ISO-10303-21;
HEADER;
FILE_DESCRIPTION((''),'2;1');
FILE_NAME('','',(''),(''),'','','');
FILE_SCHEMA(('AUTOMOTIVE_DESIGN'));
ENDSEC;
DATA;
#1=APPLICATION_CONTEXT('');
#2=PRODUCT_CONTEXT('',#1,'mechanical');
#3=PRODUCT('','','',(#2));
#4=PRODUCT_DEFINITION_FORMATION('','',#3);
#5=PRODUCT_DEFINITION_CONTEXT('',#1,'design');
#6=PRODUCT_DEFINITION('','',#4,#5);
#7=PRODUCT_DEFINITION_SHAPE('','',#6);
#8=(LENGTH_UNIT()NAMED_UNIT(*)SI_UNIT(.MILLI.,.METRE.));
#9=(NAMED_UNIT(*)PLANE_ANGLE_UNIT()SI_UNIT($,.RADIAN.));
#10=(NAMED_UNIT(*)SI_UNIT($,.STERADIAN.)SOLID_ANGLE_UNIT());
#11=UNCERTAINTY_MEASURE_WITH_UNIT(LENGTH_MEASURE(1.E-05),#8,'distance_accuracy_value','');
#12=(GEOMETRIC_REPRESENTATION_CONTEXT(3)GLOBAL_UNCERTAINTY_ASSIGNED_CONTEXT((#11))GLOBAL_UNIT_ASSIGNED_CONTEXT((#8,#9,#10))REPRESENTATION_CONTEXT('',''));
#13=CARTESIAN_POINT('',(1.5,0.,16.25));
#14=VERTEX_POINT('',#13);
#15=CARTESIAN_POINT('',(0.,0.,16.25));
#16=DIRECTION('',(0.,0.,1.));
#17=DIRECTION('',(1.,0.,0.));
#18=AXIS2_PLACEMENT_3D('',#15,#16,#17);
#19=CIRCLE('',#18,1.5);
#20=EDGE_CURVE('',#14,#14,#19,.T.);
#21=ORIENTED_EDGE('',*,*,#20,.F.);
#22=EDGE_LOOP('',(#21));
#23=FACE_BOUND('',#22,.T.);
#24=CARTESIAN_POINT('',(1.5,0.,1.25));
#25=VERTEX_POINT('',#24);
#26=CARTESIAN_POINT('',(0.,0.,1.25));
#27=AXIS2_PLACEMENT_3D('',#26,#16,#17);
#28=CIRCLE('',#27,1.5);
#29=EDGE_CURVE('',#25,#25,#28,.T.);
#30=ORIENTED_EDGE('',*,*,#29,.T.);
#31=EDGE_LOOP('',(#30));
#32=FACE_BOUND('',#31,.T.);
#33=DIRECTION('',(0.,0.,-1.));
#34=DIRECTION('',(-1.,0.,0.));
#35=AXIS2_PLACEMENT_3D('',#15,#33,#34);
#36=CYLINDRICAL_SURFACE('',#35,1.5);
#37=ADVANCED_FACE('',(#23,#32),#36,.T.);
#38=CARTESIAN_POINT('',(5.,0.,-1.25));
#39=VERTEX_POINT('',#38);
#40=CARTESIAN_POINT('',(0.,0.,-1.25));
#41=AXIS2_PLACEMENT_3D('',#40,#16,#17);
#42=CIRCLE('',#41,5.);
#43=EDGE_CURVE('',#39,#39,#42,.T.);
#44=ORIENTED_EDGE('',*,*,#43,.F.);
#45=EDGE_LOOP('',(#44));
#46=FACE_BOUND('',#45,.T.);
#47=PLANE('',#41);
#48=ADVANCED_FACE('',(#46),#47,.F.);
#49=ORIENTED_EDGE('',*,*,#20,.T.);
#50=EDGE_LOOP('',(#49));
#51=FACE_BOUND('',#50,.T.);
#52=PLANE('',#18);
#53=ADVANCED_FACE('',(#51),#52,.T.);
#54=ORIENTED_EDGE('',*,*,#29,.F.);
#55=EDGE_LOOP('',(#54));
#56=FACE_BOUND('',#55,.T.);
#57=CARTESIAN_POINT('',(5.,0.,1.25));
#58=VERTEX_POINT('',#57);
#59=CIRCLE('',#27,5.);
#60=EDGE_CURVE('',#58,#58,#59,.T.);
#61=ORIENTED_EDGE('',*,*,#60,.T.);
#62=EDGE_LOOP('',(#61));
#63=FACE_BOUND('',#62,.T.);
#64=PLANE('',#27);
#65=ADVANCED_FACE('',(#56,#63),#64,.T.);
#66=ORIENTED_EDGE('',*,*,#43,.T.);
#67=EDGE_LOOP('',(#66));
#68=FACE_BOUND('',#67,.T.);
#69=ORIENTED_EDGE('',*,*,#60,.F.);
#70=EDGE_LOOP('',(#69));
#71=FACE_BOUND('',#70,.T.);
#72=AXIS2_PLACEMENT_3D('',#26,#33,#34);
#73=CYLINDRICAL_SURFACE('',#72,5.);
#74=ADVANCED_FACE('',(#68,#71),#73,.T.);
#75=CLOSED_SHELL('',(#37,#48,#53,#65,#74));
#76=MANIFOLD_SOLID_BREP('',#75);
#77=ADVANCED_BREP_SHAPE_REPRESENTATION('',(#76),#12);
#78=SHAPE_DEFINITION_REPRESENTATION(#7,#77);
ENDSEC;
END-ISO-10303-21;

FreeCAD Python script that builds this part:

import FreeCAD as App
import Part
import Sketcher
from FreeCAD import Vector
Q = App.Units.Quantity

doc = App.newDocument("Part")
params = doc.addObject("Spreadsheet::Sheet", "Params")
for row, (alias, value) in enumerate([
    ("sketch1_diameter", "10 mm"),
    ("pad1_length", "2.5 mm"),
    ("sketch2_diameter", "3 mm"),
    ("pad2_length", "15 mm"),
], start=1):
    params.set(f"A{row}", alias)
    params.set(f"B{row}", "=" + value)
    params.setAlias(f"B{row}", alias)

body = doc.addObject("PartDesign::Body", "Body")

# Sketch on XY plane
sketch1 = body.newObject("Sketcher::SketchObject", "Sketch")
sketch1.AttachmentSupport = (doc.getObject("XY_Plane"), [""])
sketch1.MapMode = "FlatFace"
sketch1.addGeometry(Part.Circle(Vector(0, 0, 0), Vector(0, 0, 1), 5), False)
sketch1.addConstraint(Sketcher.Constraint("Coincident", 0, 3, -1, 1))
sketch1.addConstraint(Sketcher.Constraint("Diameter", 0, Q("10 mm")))
sketch1.setExpression("Constraints[1]", "Params.sketch1_diameter")
pad1 = body.newObject("PartDesign::Pad", "Pad")
pad1.Profile = sketch1
pad1.setExpression("Length", "Params.pad1_length")
pad1.Midplane = True

# Sketch on XY plane
sketch2 = body.newObject("Sketcher::SketchObject", "Sketch001")
sketch2.AttachmentSupport = (doc.getObject("XY_Plane"), [""])
sketch2.MapMode = "FlatFace"
sketch2.AttachmentOffset = App.Placement(Vector(0, 0, 1.25), App.Rotation())
sketch2.addGeometry(Part.Circle(Vector(0, 0, 0), Vector(0, 0, 1), 1.5), False)
sketch2.addConstraint(Sketcher.Constraint("Coincident", 0, 3, -1, 1))
sketch2.addConstraint(Sketcher.Constraint("Diameter", 0, Q("3 mm")))
sketch2.setExpression("Constraints[1]", "Params.sketch2_diameter")
pad2 = body.newObject("PartDesign::Pad", "Pad001")
pad2.Profile = sketch2
pad2.setExpression("Length", "Params.pad2_length")

doc.recompute()
